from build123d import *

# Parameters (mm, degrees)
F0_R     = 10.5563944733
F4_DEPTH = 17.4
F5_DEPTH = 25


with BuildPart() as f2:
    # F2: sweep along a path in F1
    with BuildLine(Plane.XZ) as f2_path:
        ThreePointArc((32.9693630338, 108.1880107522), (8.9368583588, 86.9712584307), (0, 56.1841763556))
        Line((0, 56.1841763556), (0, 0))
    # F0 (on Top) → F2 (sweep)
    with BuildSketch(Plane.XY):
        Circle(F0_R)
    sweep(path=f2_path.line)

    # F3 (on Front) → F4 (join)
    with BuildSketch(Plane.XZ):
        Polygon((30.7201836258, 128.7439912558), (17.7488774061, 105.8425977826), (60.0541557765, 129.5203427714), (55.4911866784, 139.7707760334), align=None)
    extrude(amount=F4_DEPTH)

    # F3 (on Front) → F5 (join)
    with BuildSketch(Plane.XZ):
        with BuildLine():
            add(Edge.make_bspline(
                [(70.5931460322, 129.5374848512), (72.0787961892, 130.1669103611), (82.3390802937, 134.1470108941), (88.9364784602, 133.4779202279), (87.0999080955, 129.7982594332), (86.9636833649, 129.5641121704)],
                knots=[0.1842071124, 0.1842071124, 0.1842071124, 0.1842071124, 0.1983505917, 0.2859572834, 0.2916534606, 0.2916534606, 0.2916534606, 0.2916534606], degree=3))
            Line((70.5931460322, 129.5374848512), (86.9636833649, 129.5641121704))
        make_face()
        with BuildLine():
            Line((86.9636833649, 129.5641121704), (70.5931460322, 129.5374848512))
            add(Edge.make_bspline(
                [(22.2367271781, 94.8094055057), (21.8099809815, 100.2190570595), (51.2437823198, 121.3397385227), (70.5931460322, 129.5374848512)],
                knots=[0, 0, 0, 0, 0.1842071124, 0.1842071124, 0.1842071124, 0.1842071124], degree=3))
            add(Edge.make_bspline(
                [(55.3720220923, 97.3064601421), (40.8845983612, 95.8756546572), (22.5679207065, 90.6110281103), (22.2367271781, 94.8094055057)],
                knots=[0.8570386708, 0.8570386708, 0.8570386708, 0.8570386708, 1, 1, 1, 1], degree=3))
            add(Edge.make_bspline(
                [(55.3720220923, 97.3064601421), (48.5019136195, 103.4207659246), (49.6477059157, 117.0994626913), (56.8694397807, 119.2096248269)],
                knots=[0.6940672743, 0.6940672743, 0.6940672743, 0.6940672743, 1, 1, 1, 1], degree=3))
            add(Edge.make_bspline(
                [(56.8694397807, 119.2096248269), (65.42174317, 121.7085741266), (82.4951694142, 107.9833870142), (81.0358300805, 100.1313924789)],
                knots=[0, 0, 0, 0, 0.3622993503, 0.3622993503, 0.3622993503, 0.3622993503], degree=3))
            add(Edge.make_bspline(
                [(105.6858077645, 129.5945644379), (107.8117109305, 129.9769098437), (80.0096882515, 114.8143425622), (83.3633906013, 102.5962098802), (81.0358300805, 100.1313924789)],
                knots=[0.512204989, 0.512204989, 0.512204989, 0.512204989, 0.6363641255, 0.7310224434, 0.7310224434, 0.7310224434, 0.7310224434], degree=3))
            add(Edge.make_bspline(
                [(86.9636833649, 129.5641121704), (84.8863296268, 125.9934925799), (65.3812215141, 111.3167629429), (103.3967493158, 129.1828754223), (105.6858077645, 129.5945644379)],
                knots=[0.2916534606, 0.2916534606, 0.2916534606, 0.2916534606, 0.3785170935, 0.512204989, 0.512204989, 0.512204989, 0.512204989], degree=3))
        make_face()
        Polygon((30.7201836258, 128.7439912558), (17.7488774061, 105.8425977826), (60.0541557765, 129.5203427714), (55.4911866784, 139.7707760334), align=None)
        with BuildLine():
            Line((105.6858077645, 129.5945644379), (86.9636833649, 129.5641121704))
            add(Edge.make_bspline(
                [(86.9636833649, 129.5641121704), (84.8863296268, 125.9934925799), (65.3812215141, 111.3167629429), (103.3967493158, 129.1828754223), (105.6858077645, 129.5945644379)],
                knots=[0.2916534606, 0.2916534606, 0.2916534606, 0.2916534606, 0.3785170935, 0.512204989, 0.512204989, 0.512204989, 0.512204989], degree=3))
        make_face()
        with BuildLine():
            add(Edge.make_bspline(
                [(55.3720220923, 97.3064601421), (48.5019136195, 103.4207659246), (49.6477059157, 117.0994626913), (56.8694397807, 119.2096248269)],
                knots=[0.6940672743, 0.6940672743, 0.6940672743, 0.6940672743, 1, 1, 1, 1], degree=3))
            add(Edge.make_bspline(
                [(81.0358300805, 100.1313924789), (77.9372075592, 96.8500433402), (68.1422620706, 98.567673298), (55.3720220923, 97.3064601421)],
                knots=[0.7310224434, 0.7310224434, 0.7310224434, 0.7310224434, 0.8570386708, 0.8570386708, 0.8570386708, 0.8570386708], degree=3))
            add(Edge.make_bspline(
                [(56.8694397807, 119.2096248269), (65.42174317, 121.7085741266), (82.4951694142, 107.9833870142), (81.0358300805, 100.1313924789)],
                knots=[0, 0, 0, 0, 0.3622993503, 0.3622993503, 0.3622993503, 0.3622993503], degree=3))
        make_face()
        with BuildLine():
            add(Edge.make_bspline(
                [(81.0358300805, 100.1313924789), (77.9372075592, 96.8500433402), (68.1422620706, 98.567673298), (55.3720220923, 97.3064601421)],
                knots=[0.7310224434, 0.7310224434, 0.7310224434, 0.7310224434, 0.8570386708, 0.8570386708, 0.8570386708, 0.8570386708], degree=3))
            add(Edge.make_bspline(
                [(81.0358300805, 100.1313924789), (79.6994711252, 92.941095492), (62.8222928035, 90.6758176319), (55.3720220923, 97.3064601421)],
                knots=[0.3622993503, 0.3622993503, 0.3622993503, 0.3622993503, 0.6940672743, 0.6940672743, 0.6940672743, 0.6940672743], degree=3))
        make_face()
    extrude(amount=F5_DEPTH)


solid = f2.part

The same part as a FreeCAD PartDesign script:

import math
import FreeCAD as App
import Part
import Sketcher

V = App.Vector
Q = App.Units.Quantity


def add_polygon(sketch, points):
    """Adds a closed chain of lines whose ends are joined by coincident constraints."""
    first, n = sketch.GeometryCount, len(points)
    for a, b in zip(points, points[1:] + points[:1]):
        sketch.addGeometry(Part.LineSegment(App.Vector(*a, 0), App.Vector(*b, 0)), False)
    for i in range(n):
        sketch.addConstraint(Sketcher.Constraint("Coincident", first + i, 2, first + (i + 1) % n, 1))

doc = App.newDocument("Part")
body = doc.addObject("PartDesign::Body", "Body")

# Sketch on XY plane
sketch1 = doc.addObject("Sketcher::SketchObject", "Sketch")
body.addObject(sketch1)
sketch1.AttachmentSupport = (doc.XY_Plane, [""])
sketch1.MapMode = "FlatFace"
sketch1.addGeometry(Part.Circle(V(0, 0, 0), V(0, 0, 1), 10.556394), False)
sketch1.addConstraint([
    Sketcher.Constraint("Coincident", 0, 3, -1, 1),
    Sketcher.Constraint("Diameter", 0, Q("21.112789 mm")),
])

# Sketch on XZ plane
sketch2 = doc.addObject("Sketcher::SketchObject", "Sketch001")
body.addObject(sketch2)
sketch2.AttachmentSupport = (doc.XZ_Plane, [""])
sketch2.MapMode = "FlatFace"
sketch2.addGeometry([
    Part.ArcOfCircle(Part.Circle(V(57.498498, 56.184176, 0), V(0, 0, 1), 57.498498), math.radians(115.252284), math.radians(180)),
    Part.LineSegment(V(0, 56.184176, 0), V(0, 0, 0)),
], False)
sketch2.addConstraint([
    Sketcher.Constraint("Tangent", 0, 2, 1, 1),
    Sketcher.Constraint("Vertical", 1),
    Sketcher.Constraint("Coincident", 1, 2, -1, 1),
    Sketcher.Constraint("Radius", 0, Q("57.498498 mm")),
    Sketcher.Constraint("DistanceY", 1, 2, 1, 1, Q("56.184176 mm")),
    Sketcher.Constraint("DistanceY", -1, 1, 0, 1, Q("108.188011 mm")),
])
doc.recompute()

additivepipe = doc.addObject("PartDesign::AdditivePipe", "AdditivePipe")
body.addObject(additivepipe)
additivepipe.Profile = sketch1
additivepipe.Spine = (sketch2, ["Edge1", "Edge2"])

# Sketch on XZ plane
sketch3 = doc.addObject("Sketcher::SketchObject", "Sketch002")
body.addObject(sketch3)
sketch3.AttachmentSupport = (doc.XZ_Plane, [""])
sketch3.MapMode = "FlatFace"
add_polygon(sketch3, [(30.720184, 128.743991), (17.748877, 105.842598), (60.054156, 129.520343), (55.491187, 139.770776)])  # lines 0-3
sketch3.addConstraint([
    Sketcher.Constraint("Perpendicular", 2, 3),
    Sketcher.Constraint("DistanceY", -1, 1, 3, 2, Q("128.743991 mm")),
    Sketcher.Constraint("DistanceX", 0, 2, 1, 2, Q("42.305278 mm")),
    Sketcher.Constraint("DistanceX", 2, 2, 1, 2, Q("4.562969 mm")),
    Sketcher.Constraint("DistanceY", 0, 2, 2, 2, Q("33.928178 mm")),
    Sketcher.Constraint("DistanceY", 3, 2, 1, 2, Q("0.776352 mm")),
    Sketcher.Constraint("Distance", 0, Q("26.319738 mm")),
    Sketcher.Constraint("DistanceX", -1, 1, 0, 2, Q("17.748877 mm")),
])
pad1 = doc.addObject("PartDesign::Pad", "Pad")
body.addObject(pad1)
pad1.Profile = sketch3
pad1.Length = 17.4

# Sketch on XZ plane
sketch4 = doc.addObject("Sketcher::SketchObject", "Sketch003")
body.addObject(sketch4)
sketch4.AttachmentSupport = (doc.XZ_Plane, [""])
sketch4.MapMode = "FlatFace"
sketch4.addGeometry(Part.BSplineCurve([V(70.593146, 129.537485, 0), V(72.078796, 130.16691, 0), V(82.33908, 134.147011, 0), V(88.936478, 133.47792, 0), V(87.099908, 129.798259, 0), V(86.963683, 129.564112, 0)], [4, 1, 1, 4], [0.184207112, 0.198350592, 0.285957283, 0.291653461], False, 3, [1, 1, 1, 1, 1, 1], False), False)  # 0
sketch4.addGeometry(Part.BSplineCurve([V(22.236727, 94.809406, 0), V(21.809981, 100.219057, 0), V(51.243782, 121.339739, 0), V(70.593146, 129.537485, 0)], [4, 4], [0, 0.184207112], False, 3, [1, 1, 1, 1], False), False)  # 1
sketch4.addGeometry(Part.BSplineCurve([V(55.372022, 97.30646, 0), V(40.884598, 95.875655, 0), V(22.567921, 90.611028, 0), V(22.236727, 94.809406, 0)], [4, 4], [0.857038671, 1], False, 3, [1, 1, 1, 1], False), False)  # 2
sketch4.addGeometry(Part.BSplineCurve([V(81.03583, 100.131392, 0), V(79.699471, 92.941095, 0), V(62.822293, 90.675818, 0), V(55.372022, 97.30646, 0)], [4, 4], [0.36229935, 0.694067274], False, 3, [1, 1, 1, 1], False), False)  # 3
sketch4.addGeometry(Part.BSplineCurve([V(105.685808, 129.594564, 0), V(107.811711, 129.97691, 0), V(80.009688, 114.814343, 0), V(83.363391, 102.59621, 0), V(81.03583, 100.131392, 0)], [4, 1, 4], [0.512204989, 0.636364125, 0.731022443], False, 3, [1, 1, 1, 1, 1], False), False)  # 4
sketch4.addGeometry(Part.LineSegment(V(105.685808, 129.594564, 0), V(86.963683, 129.564112, 0)), False)  # 5
add_polygon(sketch4, [(30.720184, 128.743991), (17.748877, 105.842598), (60.054156, 129.520343), (55.491187, 139.770776)])  # lines 6-9
sketch4.addConstraint([
    Sketcher.Constraint("Block", 0),
    Sketcher.Constraint("Block", 1),
    Sketcher.Constraint("Block", 2),
    Sketcher.Constraint("Block", 3),
    Sketcher.Constraint("Block", 4),
    Sketcher.Constraint("Coincident", 4, 1, 5, 1),
    Sketcher.Constraint("Coincident", 5, 2, 0, 2),
    Sketcher.Constraint("Perpendicular", 8, 9),
    Sketcher.Constraint("DistanceX", 9, 2, 5, 2, Q("56.2435 mm")),
    Sketcher.Constraint("DistanceY", -1, 1, 9, 2, Q("128.743991 mm")),
    Sketcher.Constraint("DistanceY", 7, 2, 5, 2, Q("0.043769 mm")),
    Sketcher.Constraint("DistanceX", 6, 2, 7, 2, Q("42.305278 mm")),
    Sketcher.Constraint("DistanceX", 8, 2, 7, 2, Q("4.562969 mm")),
    Sketcher.Constraint("DistanceY", 6, 2, 8, 2, Q("33.928178 mm")),
    Sketcher.Constraint("Distance", 6, Q("26.319738 mm")),
])
pad2 = doc.addObject("PartDesign::Pad", "Pad001")
body.addObject(pad2)
pad2.Profile = sketch4
pad2.Length = 25

doc.recompute()
